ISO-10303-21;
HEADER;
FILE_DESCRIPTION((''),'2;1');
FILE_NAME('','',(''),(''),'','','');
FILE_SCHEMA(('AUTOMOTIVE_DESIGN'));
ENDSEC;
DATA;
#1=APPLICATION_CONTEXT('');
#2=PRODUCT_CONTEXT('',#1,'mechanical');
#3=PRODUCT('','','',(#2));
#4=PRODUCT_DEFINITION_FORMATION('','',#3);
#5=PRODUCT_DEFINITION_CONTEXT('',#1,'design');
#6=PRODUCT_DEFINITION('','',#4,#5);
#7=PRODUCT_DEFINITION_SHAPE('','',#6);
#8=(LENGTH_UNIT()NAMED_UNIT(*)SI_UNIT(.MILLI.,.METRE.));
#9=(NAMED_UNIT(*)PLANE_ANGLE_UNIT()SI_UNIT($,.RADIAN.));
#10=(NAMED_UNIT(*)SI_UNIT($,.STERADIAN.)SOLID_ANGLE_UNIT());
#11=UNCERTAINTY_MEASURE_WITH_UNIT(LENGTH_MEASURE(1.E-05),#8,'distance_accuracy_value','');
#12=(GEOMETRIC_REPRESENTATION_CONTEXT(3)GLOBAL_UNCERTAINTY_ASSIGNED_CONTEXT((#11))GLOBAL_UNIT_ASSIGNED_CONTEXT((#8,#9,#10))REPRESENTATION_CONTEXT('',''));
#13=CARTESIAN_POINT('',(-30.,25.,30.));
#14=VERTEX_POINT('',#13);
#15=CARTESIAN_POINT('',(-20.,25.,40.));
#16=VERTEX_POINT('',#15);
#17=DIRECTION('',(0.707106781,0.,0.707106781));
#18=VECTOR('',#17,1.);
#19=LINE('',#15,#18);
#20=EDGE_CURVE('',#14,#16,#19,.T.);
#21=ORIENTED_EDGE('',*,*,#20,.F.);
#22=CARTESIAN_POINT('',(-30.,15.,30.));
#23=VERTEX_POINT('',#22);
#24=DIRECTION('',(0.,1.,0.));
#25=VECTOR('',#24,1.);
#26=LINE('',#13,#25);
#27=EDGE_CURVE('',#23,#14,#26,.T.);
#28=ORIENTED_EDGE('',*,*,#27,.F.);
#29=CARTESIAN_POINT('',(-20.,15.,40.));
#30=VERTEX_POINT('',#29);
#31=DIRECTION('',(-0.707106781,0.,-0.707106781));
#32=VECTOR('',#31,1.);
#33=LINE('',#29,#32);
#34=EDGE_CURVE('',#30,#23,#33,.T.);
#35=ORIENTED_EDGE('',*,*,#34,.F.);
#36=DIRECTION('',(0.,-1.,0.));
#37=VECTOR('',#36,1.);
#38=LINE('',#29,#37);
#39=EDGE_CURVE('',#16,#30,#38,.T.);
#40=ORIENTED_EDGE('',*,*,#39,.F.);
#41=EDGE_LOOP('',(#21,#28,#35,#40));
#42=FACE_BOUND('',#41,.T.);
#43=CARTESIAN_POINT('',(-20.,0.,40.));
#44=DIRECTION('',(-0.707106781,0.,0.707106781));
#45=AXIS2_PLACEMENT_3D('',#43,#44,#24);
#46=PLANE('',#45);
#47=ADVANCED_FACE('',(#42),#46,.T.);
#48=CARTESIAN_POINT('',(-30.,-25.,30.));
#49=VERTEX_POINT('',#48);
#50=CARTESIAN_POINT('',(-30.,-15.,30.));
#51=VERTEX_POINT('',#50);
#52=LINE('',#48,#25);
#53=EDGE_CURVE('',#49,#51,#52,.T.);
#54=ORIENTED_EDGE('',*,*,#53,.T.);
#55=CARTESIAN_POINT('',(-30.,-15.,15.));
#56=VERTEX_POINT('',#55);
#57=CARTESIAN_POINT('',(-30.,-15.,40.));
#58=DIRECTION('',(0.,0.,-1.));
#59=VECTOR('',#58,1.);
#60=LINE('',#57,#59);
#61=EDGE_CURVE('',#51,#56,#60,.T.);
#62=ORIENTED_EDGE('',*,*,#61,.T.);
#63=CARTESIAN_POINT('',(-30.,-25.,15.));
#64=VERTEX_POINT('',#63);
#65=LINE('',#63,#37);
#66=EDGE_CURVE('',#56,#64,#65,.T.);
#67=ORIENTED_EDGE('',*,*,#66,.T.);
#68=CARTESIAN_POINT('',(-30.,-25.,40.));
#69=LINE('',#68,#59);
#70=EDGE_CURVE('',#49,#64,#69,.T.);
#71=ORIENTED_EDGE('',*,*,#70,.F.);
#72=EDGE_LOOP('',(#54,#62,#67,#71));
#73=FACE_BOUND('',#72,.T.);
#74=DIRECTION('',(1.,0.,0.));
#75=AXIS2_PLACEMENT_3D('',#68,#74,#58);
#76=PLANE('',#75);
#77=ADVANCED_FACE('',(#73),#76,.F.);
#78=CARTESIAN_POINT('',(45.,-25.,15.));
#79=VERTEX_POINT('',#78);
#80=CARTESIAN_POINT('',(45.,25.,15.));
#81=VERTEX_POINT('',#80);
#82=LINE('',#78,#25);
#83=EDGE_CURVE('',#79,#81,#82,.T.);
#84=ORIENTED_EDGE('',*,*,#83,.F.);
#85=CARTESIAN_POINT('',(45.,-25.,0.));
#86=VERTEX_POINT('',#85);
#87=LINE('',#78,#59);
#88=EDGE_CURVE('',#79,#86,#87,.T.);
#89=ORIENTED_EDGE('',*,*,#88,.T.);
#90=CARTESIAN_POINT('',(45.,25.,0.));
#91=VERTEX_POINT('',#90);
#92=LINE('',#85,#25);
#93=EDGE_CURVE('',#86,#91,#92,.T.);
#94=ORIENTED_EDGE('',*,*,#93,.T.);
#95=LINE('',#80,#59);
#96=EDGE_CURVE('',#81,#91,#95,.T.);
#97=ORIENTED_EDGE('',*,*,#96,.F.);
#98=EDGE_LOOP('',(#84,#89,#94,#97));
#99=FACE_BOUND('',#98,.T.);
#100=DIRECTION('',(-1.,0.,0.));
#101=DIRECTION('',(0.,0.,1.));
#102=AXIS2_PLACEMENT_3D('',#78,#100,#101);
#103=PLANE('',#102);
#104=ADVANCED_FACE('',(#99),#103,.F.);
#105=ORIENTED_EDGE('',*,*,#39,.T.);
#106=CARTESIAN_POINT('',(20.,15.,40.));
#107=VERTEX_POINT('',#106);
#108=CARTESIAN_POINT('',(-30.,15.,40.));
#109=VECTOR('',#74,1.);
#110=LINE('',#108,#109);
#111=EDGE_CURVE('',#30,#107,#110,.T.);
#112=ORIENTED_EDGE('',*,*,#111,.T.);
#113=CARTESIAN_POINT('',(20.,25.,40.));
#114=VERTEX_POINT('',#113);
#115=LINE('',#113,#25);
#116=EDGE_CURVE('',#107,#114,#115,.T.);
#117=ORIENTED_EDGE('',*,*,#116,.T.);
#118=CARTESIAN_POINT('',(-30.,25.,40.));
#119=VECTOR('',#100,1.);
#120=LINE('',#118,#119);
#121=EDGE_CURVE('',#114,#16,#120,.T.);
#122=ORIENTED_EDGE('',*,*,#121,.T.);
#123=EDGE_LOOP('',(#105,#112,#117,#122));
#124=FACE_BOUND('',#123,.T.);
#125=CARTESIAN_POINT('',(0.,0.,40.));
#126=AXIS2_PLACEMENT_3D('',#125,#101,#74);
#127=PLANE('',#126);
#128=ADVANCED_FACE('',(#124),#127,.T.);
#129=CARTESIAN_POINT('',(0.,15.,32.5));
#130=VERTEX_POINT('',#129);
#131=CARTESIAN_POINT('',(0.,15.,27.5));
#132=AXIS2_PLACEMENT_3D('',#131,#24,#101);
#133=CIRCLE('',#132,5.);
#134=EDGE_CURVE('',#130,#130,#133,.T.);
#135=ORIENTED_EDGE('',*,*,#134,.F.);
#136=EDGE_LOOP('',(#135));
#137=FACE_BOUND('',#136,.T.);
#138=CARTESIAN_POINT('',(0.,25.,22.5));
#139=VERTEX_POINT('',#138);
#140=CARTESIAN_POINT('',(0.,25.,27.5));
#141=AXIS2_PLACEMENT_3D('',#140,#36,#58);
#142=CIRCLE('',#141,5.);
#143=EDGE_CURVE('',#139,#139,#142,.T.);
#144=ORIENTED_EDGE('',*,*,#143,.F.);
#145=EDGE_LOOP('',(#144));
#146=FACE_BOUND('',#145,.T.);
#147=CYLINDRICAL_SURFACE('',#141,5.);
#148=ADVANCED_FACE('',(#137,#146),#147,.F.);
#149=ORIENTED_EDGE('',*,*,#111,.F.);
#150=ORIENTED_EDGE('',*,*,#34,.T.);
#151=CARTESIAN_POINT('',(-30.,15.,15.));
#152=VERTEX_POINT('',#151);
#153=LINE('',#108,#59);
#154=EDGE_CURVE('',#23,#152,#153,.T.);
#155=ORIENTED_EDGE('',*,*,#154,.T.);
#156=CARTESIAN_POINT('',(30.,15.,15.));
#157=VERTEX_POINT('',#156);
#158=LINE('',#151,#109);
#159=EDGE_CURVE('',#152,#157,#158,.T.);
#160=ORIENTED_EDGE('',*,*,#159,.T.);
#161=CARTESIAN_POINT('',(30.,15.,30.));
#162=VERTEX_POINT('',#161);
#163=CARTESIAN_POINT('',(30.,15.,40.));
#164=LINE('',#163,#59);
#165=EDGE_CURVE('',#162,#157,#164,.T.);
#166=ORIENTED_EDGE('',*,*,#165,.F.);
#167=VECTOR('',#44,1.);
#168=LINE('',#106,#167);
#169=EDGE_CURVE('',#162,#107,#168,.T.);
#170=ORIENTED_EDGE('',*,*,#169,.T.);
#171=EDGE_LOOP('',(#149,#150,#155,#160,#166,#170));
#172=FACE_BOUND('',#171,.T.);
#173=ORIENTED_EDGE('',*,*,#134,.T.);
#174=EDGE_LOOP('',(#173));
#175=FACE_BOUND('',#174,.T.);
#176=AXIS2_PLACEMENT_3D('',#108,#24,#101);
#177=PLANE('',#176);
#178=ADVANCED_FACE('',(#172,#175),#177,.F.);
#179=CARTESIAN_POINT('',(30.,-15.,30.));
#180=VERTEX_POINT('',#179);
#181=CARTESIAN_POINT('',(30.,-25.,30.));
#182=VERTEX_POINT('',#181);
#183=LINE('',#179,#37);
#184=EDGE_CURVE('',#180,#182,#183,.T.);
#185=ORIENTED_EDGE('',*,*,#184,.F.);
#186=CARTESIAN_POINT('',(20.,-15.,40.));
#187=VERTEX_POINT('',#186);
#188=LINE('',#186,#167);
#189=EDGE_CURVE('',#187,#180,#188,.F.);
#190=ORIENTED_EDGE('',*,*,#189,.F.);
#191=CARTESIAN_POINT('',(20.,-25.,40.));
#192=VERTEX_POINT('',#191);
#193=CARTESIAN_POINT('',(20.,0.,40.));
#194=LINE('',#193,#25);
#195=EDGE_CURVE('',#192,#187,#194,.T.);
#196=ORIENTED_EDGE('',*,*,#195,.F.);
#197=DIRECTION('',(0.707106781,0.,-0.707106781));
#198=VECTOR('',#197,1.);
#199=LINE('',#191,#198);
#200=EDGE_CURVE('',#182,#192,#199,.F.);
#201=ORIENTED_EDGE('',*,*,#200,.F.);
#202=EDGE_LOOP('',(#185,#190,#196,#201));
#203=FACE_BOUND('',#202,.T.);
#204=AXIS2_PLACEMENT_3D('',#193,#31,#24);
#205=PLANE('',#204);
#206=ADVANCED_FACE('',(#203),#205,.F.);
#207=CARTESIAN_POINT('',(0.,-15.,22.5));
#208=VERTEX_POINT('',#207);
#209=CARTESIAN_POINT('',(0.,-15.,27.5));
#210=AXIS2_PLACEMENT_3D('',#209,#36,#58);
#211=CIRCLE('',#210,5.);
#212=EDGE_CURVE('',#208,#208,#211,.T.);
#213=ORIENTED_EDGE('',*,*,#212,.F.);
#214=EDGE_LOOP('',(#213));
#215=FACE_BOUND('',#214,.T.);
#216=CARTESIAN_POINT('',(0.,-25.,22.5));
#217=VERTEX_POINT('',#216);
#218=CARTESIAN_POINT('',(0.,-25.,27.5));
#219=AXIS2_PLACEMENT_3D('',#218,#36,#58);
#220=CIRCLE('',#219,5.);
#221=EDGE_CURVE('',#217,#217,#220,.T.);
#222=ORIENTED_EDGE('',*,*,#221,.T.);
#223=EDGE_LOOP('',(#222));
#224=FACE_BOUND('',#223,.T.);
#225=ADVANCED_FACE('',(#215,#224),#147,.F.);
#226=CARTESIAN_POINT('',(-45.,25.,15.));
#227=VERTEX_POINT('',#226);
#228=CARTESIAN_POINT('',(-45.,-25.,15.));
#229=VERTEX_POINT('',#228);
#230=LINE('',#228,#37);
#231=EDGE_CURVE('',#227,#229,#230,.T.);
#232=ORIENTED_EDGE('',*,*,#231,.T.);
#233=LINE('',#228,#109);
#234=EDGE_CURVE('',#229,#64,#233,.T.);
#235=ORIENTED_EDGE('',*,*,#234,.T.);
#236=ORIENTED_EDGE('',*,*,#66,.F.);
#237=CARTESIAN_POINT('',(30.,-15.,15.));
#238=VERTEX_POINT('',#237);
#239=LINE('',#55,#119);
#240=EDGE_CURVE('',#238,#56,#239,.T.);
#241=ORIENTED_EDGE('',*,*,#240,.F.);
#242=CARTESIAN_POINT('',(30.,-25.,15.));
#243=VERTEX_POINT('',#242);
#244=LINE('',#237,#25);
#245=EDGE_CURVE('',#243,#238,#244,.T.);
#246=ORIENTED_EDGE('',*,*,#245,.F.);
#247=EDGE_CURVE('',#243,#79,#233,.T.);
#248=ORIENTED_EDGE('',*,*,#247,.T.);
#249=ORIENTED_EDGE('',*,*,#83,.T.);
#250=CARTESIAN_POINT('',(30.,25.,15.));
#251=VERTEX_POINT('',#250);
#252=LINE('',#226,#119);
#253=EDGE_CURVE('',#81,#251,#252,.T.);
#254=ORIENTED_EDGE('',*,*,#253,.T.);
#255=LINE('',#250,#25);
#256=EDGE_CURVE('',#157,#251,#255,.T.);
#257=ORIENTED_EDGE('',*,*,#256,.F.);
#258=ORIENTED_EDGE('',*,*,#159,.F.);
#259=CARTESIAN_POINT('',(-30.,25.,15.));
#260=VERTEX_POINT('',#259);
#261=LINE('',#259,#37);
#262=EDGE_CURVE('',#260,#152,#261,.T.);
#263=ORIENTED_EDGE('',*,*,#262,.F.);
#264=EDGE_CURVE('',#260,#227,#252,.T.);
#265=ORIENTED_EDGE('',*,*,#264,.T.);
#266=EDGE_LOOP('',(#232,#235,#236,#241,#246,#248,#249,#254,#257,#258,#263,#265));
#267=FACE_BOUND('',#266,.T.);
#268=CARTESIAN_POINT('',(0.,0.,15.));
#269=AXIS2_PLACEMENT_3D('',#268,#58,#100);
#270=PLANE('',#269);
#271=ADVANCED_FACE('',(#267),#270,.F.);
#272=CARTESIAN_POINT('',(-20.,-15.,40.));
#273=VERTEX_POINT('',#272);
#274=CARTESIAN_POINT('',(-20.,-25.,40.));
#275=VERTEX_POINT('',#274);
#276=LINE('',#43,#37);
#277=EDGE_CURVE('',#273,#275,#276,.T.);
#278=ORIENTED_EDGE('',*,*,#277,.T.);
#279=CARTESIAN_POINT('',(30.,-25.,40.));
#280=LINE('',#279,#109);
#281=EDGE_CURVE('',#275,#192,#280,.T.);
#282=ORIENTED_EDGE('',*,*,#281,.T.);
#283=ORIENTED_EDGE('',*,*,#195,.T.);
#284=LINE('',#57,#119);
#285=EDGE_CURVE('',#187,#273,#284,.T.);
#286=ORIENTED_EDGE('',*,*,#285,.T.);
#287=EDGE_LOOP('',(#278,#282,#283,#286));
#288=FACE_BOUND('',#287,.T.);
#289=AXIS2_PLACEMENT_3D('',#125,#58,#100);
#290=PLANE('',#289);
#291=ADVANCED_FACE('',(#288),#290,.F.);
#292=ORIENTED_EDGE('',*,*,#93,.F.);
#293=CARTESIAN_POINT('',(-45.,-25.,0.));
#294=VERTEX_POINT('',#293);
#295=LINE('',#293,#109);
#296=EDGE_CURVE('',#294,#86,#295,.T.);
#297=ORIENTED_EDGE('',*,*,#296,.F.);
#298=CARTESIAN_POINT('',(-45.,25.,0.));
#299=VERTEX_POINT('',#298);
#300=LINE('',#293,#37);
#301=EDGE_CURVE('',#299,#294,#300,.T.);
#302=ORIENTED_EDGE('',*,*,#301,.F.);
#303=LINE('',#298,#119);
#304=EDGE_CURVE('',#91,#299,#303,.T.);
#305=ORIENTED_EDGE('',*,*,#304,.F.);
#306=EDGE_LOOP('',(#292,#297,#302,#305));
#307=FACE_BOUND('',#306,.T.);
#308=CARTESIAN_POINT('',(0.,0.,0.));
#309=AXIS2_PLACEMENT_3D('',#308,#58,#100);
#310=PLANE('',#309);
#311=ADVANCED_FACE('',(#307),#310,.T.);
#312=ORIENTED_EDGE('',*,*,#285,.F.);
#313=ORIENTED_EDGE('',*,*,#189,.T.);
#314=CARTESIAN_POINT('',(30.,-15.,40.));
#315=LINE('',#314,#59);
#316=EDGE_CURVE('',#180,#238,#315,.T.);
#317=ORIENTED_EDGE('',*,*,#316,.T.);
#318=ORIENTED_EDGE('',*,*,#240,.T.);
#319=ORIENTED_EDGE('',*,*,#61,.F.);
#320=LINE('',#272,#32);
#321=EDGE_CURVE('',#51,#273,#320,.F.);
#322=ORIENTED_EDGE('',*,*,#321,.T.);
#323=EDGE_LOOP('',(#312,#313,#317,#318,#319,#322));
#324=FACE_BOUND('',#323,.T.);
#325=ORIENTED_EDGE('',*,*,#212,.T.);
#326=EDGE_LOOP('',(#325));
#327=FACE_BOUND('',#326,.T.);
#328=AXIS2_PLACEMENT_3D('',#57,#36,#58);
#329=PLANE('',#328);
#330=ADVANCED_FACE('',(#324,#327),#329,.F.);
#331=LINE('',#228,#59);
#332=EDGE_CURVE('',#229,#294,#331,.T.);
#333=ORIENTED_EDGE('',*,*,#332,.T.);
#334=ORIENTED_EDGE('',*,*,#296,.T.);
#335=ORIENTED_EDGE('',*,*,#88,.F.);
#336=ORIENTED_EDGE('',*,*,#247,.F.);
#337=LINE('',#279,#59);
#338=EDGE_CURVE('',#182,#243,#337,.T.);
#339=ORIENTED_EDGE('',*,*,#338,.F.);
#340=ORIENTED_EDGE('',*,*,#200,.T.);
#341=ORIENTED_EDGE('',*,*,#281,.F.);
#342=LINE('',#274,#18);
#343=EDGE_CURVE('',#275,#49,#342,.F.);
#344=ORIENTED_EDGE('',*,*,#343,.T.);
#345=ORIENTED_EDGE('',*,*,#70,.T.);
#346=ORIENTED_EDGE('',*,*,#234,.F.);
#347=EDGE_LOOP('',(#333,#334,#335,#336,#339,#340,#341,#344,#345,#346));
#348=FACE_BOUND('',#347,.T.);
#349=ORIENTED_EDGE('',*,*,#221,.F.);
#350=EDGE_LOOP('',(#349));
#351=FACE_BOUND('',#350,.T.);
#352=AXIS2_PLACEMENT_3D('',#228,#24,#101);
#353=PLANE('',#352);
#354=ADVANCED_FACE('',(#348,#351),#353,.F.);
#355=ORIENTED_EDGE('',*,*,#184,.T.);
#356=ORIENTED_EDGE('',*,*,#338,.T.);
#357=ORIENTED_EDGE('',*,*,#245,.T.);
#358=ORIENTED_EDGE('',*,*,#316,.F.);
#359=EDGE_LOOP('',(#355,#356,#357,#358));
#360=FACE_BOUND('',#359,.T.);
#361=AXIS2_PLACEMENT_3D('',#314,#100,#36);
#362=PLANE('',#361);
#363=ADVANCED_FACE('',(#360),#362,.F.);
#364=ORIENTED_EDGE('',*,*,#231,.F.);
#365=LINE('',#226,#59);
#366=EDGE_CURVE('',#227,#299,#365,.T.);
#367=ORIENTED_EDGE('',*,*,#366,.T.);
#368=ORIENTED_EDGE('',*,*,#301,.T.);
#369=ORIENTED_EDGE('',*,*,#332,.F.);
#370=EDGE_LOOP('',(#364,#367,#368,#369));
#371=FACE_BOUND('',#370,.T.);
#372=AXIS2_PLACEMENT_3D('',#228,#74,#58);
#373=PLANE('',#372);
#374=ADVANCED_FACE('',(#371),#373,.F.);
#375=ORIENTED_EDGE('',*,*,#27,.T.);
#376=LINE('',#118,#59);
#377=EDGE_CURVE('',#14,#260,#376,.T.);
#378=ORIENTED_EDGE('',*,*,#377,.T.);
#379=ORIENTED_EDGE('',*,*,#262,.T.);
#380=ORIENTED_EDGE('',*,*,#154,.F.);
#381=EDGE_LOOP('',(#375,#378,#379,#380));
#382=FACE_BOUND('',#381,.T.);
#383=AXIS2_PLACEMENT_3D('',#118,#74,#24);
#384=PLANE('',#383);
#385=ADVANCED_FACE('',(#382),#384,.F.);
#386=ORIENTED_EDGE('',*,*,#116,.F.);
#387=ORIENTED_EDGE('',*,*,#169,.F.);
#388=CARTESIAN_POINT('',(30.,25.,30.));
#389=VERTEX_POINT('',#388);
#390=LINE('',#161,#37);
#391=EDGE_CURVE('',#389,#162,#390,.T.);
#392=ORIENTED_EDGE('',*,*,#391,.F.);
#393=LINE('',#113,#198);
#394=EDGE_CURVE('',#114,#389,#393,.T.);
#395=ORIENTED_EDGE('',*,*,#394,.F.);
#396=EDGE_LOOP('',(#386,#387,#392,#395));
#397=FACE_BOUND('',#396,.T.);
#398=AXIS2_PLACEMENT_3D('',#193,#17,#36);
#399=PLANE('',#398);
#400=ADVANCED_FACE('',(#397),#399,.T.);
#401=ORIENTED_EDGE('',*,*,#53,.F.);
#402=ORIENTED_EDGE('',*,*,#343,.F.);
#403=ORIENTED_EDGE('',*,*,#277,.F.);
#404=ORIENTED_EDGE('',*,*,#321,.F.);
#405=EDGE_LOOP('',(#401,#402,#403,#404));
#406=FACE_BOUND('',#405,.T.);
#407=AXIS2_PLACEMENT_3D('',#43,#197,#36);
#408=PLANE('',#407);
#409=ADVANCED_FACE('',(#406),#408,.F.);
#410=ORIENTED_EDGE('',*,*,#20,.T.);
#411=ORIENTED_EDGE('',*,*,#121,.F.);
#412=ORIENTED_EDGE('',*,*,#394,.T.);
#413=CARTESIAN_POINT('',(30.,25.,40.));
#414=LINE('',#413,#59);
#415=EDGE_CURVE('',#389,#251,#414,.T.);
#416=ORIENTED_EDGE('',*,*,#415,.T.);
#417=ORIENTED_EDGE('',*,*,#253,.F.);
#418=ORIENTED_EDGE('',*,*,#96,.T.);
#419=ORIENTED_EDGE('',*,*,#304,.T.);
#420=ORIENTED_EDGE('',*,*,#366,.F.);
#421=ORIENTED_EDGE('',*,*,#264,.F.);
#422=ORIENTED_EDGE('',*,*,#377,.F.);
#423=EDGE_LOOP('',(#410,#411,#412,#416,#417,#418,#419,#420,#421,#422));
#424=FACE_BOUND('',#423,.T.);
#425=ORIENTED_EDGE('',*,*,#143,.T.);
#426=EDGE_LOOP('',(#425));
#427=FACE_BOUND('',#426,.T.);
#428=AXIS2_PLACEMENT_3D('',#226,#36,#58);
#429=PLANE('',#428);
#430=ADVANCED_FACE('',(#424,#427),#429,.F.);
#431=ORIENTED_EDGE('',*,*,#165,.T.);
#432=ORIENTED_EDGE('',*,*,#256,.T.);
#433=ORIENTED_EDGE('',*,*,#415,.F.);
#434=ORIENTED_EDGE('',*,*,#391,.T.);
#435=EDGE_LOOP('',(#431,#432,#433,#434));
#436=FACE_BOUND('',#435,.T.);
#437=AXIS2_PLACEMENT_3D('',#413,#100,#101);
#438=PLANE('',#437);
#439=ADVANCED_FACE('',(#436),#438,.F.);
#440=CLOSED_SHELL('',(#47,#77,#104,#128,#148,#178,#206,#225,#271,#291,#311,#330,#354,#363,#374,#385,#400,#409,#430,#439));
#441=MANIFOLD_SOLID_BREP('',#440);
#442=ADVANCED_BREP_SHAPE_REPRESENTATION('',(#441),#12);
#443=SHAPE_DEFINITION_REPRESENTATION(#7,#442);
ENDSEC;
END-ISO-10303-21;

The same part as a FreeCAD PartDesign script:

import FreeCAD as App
import Part
import Sketcher
from FreeCAD import Vector


def edges_at(feature, points):
    """Names of the edges that pass closest to the given points."""
    edges = feature.Shape.Edges
    near = lambda p: min(range(len(edges)), key=lambda i: edges[i].distToShape(Part.Vertex(*p))[0])
    return sorted({f"Edge{near(p) + 1}" for p in points})

doc = App.newDocument("Part")
params = doc.addObject("Spreadsheet::Sheet", "Params")
for row, (alias, value) in enumerate([
    ("sketch1_width", "90 mm"),
    ("sketch1_height", "50 mm"),
    ("pad1_length", "15 mm"),
    ("sketch2_width", "60 mm"),
    ("sketch2_height", "10 mm"),
    ("pad2_length", "25 mm"),
    ("sketch3_diameter", "10 mm"),
    ("chamfer_size", "10 mm"),
], start=1):
    params.set(f"A{row}", alias)
    params.set(f"B{row}", "=" + value)
    params.setAlias(f"B{row}", alias)

body = doc.addObject("PartDesign::Body", "Body")

sketch1 = body.newObject("Sketcher::SketchObject", "Sketch")
sketch1.AttachmentSupport = (doc.getObject("XY_Plane"), [""])
sketch1.MapMode = "FlatFace"
sketch1.addGeometry([
    Part.LineSegment(Vector(-45, 25, 0), Vector(-45, -25, 0)),
    Part.LineSegment(Vector(-45, -25, 0), Vector(45, -25, 0)),
    Part.LineSegment(Vector(45, -25, 0), Vector(45, 25, 0)),
    Part.LineSegment(Vector(45, 25, 0), Vector(-45, 25, 0)),
], False)
sketch1.addConstraint([
    Sketcher.Constraint("Coincident", 0, 2, 1, 1),
    Sketcher.Constraint("Coincident", 1, 2, 2, 1),
    Sketcher.Constraint("Coincident", 2, 2, 3, 1),
    Sketcher.Constraint("Coincident", 3, 2, 0, 1),
    Sketcher.Constraint("Vertical", 0),
    Sketcher.Constraint("Horizontal", 1),
    Sketcher.Constraint("Vertical", 2),
    Sketcher.Constraint("Horizontal", 3),
    Sketcher.Constraint("Symmetric", 0, 2, 2, 2, -1, 1),
    Sketcher.Constraint("DistanceX", 1, 1, 1, 2, 90.0),
    Sketcher.Constraint("DistanceY", 0, 2, 0, 1, 50.0),
])
sketch1.setExpression("Constraints[9]", "Params.sketch1_width")
sketch1.setExpression("Constraints[10]", "Params.sketch1_height")
pad1 = body.newObject("PartDesign::Pad", "Pad")
pad1.Profile = sketch1
pad1.setExpression("Length", "Params.pad1_length")

sketch2 = body.newObject("Sketcher::SketchObject", "Sketch001")
sketch2.AttachmentSupport = (doc.getObject("XY_Plane"), [""])
sketch2.MapMode = "FlatFace"
sketch2.AttachmentOffset = App.Placement(Vector(0, 0, 15), App.Rotation())
sketch2.addGeometry([
    Part.LineSegment(Vector(-30, 25, 0), Vector(-30, 15, 0)),
    Part.LineSegment(Vector(-30, 15, 0), Vector(30, 15, 0)),
    Part.LineSegment(Vector(30, 15, 0), Vector(30, 25, 0)),
    Part.LineSegment(Vector(30, 25, 0), Vector(-30, 25, 0)),
    Part.LineSegment(Vector(-30, -15, 0), Vector(-30, -25, 0)),
    Part.LineSegment(Vector(-30, -25, 0), Vector(30, -25, 0)),
    Part.LineSegment(Vector(30, -25, 0), Vector(30, -15, 0)),
    Part.LineSegment(Vector(30, -15, 0), Vector(-30, -15, 0)),
], False)
sketch2.addConstraint([
    Sketcher.Constraint("Coincident", 0, 2, 1, 1),
    Sketcher.Constraint("Coincident", 1, 2, 2, 1),
    Sketcher.Constraint("Coincident", 2, 2, 3, 1),
    Sketcher.Constraint("Coincident", 3, 2, 0, 1),
    Sketcher.Constraint("Coincident", 4, 2, 5, 1),
    Sketcher.Constraint("Coincident", 5, 2, 6, 1),
    Sketcher.Constraint("Coincident", 6, 2, 7, 1),
    Sketcher.Constraint("Coincident", 7, 2, 4, 1),
    Sketcher.Constraint("Vertical", 0),
    Sketcher.Constraint("Horizontal", 1),
    Sketcher.Constraint("Vertical", 2),
    Sketcher.Constraint("Horizontal", 3),
    Sketcher.Constraint("Vertical", 4),
    Sketcher.Constraint("Horizontal", 5),
    Sketcher.Constraint("Vertical", 6),
    Sketcher.Constraint("Horizontal", 7),
    Sketcher.Constraint("Symmetric", 2, 2, 4, 2, -1, 1),
    Sketcher.Constraint("Symmetric", 0, 2, 6, 2, -1, 1),
    Sketcher.Constraint("Vertical", 3, 2, 4, 2),
    Sketcher.Constraint("DistanceX", 1, 1, 1, 2, 60.0),
    Sketcher.Constraint("DistanceY", 0, 2, 0, 1, 10.0),
    Sketcher.Constraint("DistanceY", -1, 1, 0, 2, 15.0),
])
sketch2.setExpression("Constraints[19]", "Params.sketch2_width")
sketch2.setExpression("Constraints[20]", "Params.sketch2_height")
pad2 = body.newObject("PartDesign::Pad", "Pad001")
pad2.Profile = sketch2
pad2.setExpression("Length", "Params.pad2_length")

sketch3 = body.newObject("Sketcher::SketchObject", "Sketch002")
sketch3.AttachmentSupport = (doc.getObject("XZ_Plane"), [""])
sketch3.MapMode = "FlatFace"
sketch3.AttachmentOffset = App.Placement(Vector(0, 0, 25), App.Rotation())
sketch3.addGeometry(Part.Circle(Vector(0, 28, 0), Vector(0, 0, 1), 5), False)
sketch3.addConstraint([
    Sketcher.Constraint("PointOnObject", 0, 3, -2),
    Sketcher.Constraint("Diameter", 0, 10.0),
    Sketcher.Constraint("DistanceY", -1, 1, 0, 3, 27.5),
])
sketch3.setExpression("Constraints[1]", "Params.sketch3_diameter")
pocket1 = body.newObject("PartDesign::Pocket", "Pocket")
pocket1.Profile = sketch3
pocket1.Type = "ThroughAll"
doc.recompute()

chamfer = body.newObject("PartDesign::Chamfer", "Chamfer")
chamfer.Base = (pocket1, edges_at(pocket1, [
    (-30, 20, 40),
    (30, 20, 40),
    (30, -20, 40),
    (-30, -20, 40),
]))
chamfer.setExpression("Size", "Params.chamfer_size")

doc.recompute()
